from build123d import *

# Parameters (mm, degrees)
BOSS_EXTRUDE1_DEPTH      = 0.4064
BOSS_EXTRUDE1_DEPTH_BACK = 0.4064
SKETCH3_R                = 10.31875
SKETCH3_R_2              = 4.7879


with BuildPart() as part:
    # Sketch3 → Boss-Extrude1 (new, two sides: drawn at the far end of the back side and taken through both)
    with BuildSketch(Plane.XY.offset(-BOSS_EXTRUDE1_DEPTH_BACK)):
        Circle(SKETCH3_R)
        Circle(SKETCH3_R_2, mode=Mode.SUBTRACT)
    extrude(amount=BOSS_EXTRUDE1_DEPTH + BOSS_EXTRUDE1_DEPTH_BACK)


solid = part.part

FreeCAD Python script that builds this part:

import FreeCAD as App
import Part
import Sketcher
from FreeCAD import Vector
Q = App.Units.Quantity

doc = App.newDocument("Part")
body = doc.addObject("PartDesign::Body", "Body")

# Sketch on XY plane
sketch1 = doc.addObject("Sketcher::SketchObject", "Sketch")
body.addObject(sketch1)
sketch1.AttachmentSupport = (doc.XY_Plane, [""])
sketch1.MapMode = "FlatFace"
sketch1.addGeometry(Part.Circle(Vector(0, 0, 0), Vector(0, 0, 1), 10.3), False)
sketch1.addGeometry(Part.Circle(Vector(0, 0, 0), Vector(0, 0, 1), 4.8), False)
sketch1.addConstraint(Sketcher.Constraint("Coincident", 0, 3, -1, 1))
sketch1.addConstraint(Sketcher.Constraint("Coincident", 1, 3, -1, 1))
sketch1.addConstraint(Sketcher.Constraint("Diameter", 0, Q("0.8125 in")))
sketch1.addConstraint(Sketcher.Constraint("Diameter", 1, Q("0.377 in")))
pad1 = doc.addObject("PartDesign::Pad", "Pad")
body.addObject(pad1)
pad1.Profile = sketch1
pad1.Type = "TwoLengths"
pad1.Length = Q("0.016 in")
pad1.Length2 = Q("0.016 in")

doc.recompute()
